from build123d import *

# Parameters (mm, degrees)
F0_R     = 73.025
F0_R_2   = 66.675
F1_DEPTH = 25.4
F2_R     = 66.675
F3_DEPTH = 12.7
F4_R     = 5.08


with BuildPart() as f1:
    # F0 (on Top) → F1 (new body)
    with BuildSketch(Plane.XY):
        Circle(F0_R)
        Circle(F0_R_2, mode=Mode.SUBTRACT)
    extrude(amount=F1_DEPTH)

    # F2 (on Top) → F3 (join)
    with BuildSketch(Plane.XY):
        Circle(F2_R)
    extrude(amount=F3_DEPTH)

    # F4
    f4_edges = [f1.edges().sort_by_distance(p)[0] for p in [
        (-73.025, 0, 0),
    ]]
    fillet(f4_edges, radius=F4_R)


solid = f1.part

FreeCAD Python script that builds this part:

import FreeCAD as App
import Part
import Sketcher

V = App.Vector
Q = App.Units.Quantity


def edges_at(feature, points):
    """Names of the edges that pass closest to the given points."""
    edges = feature.Shape.Edges
    near = lambda p: min(range(len(edges)), key=lambda i: edges[i].distToShape(Part.Vertex(*p))[0])
    return sorted({f"Edge{near(p) + 1}" for p in points})

doc = App.newDocument("Part")
body = doc.addObject("PartDesign::Body", "Body")

# Sketch on XY plane
sketch1 = body.newObject("Sketcher::SketchObject", "Sketch")
sketch1.AttachmentSupport = (doc.getObject("XY_Plane"), [""])
sketch1.MapMode = "FlatFace"
sketch1.addGeometry(Part.Circle(V(0, 0, 0), V(0, 0, 1), 73), False)
sketch1.addGeometry(Part.Circle(V(0, 0, 0), V(0, 0, 1), 67), False)
sketch1.addConstraint(Sketcher.Constraint("Coincident", 0, 3, -1, 1))
sketch1.addConstraint(Sketcher.Constraint("Coincident", 1, 3, -1, 1))
sketch1.addConstraint(Sketcher.Constraint("Diameter", 0, Q("5.75 in")))
sketch1.addConstraint(Sketcher.Constraint("Diameter", 1, Q("5.25 in")))
pad1 = body.newObject("PartDesign::Pad", "Pad")
pad1.Profile = sketch1
pad1.Length = Q("1 in")

# Sketch on XY plane
sketch2 = body.newObject("Sketcher::SketchObject", "Sketch001")
sketch2.AttachmentSupport = (doc.getObject("XY_Plane"), [""])
sketch2.MapMode = "FlatFace"
sketch2.addGeometry(Part.Circle(V(0, 0, 0), V(0, 0, 1), 67), False)
sketch2.addConstraint(Sketcher.Constraint("Coincident", 0, 3, -1, 1))
sketch2.addConstraint(Sketcher.Constraint("Diameter", 0, Q("5.25 in")))
pad2 = body.newObject("PartDesign::Pad", "Pad001")
pad2.Profile = sketch2
pad2.Length = Q("0.5 in")
doc.recompute()

fillet = body.newObject("PartDesign::Fillet", "Fillet")
fillet.Base = (pad2, edges_at(pad2, [(-73.025, 0, 0)]))
fillet.Radius = Q("0.2 in")

doc.recompute()
